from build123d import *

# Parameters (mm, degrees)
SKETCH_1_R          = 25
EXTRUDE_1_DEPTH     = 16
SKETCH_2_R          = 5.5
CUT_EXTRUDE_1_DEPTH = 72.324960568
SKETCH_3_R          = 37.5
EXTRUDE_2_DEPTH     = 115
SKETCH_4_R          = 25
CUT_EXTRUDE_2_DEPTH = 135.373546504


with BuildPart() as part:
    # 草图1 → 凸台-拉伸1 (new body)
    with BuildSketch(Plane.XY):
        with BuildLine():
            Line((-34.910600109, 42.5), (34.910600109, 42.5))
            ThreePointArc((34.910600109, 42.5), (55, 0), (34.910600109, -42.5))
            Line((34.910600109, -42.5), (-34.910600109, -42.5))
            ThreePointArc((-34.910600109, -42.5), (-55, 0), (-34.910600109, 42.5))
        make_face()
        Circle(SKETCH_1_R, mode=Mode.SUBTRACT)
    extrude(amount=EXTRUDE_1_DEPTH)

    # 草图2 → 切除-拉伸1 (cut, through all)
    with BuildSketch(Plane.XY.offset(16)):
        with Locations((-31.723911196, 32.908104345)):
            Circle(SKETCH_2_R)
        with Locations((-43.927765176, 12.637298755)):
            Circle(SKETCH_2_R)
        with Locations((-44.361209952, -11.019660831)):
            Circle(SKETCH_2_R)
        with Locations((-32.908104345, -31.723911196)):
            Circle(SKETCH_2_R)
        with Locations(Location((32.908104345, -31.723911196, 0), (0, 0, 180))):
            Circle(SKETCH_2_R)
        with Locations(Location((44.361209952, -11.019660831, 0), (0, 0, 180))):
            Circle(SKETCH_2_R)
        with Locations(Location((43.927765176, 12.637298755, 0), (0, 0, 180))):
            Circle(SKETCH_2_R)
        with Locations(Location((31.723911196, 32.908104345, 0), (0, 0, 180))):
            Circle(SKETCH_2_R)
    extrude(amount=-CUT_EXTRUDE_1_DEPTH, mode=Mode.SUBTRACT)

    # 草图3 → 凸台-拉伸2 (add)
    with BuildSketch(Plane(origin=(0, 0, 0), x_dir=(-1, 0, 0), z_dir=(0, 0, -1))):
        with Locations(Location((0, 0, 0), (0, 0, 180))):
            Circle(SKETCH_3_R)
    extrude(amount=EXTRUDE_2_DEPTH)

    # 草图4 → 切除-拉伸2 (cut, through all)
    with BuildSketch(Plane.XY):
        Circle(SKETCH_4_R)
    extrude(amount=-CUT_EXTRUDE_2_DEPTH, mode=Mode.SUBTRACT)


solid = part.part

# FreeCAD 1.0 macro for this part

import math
import FreeCAD as App
import Part
import Sketcher

doc = App.newDocument("Part")
body = doc.addObject("PartDesign::Body", "Body")

# Sketch on XY plane
sketch1 = body.newObject("Sketcher::SketchObject", "Sketch")
sketch1.AttachmentSupport = (doc.getObject("XY_Plane"), [""])
sketch1.MapMode = "FlatFace"
sketch1.addGeometry(Part.LineSegment(App.Vector(35, 42, 0), App.Vector(-35, 42, 0)), False)
sketch1.addGeometry(Part.ArcOfCircle(Part.Circle(App.Vector(0, 0, 0), App.Vector(0, 0, 1), 55), math.radians(129), math.radians(231)), False)
sketch1.addGeometry(Part.LineSegment(App.Vector(-35, -42, 0), App.Vector(35, -42, 0)), False)
sketch1.addGeometry(Part.ArcOfCircle(Part.Circle(App.Vector(0, 0, 0), App.Vector(0, 0, 1), 55), math.radians(-51), math.radians(51)), False)
sketch1.addGeometry(Part.Circle(App.Vector(0, 0, 0), App.Vector(0, 0, 1), 25), False)
sketch1.addConstraint(Sketcher.Constraint("Coincident", 0, 2, 1, 1))
sketch1.addConstraint(Sketcher.Constraint("Coincident", 1, 2, 2, 1))
sketch1.addConstraint(Sketcher.Constraint("Coincident", 2, 2, 3, 1))
sketch1.addConstraint(Sketcher.Constraint("Coincident", 3, 2, 0, 1))
sketch1.addConstraint(Sketcher.Constraint("Horizontal", 0))
sketch1.addConstraint(Sketcher.Constraint("Horizontal", 2))
sketch1.addConstraint(Sketcher.Constraint("Coincident", 1, 3, -1, 1))
sketch1.addConstraint(Sketcher.Constraint("Coincident", 3, 3, -1, 1))
sketch1.addConstraint(Sketcher.Constraint("Coincident", 4, 3, -1, 1))
sketch1.addConstraint(Sketcher.Constraint("Equal", 1, 3))
sketch1.addConstraint(Sketcher.Constraint("Vertical", 0, 2, 1, 2))
sketch1.addConstraint(Sketcher.Constraint("Diameter", 4, 50.0))
sketch1.addConstraint(Sketcher.Constraint("Radius", 1, 55.0))
sketch1.addConstraint(Sketcher.Constraint("DistanceY", 1, 2, 0, 2, 85.0))
pad1 = body.newObject("PartDesign::Pad", "Pad")
pad1.Profile = sketch1
pad1.Length = 16

# Sketch on XY plane
sketch2 = body.newObject("Sketcher::SketchObject", "Sketch001")
sketch2.AttachmentSupport = (doc.getObject("XY_Plane"), [""])
sketch2.MapMode = "FlatFace"
sketch2.AttachmentOffset = App.Placement(App.Vector(0, 0, 16), App.Rotation())
sketch2.addGeometry(Part.Circle(App.Vector(-32, 33, 0), App.Vector(0, 0, 1), 6), False)
sketch2.addGeometry(Part.Circle(App.Vector(-44, 13, 0), App.Vector(0, 0, 1), 6), False)
sketch2.addGeometry(Part.Circle(App.Vector(-44, -11, 0), App.Vector(0, 0, 1), 6), False)
sketch2.addGeometry(Part.Circle(App.Vector(-33, -32, 0), App.Vector(0, 0, 1), 6), False)
sketch2.addGeometry(Part.Circle(App.Vector(33, -32, 0), App.Vector(0, 0, 1), 6), False)
sketch2.addGeometry(Part.Circle(App.Vector(44, -11, 0), App.Vector(0, 0, 1), 6), False)
sketch2.addGeometry(Part.Circle(App.Vector(44, 13, 0), App.Vector(0, 0, 1), 6), False)
sketch2.addGeometry(Part.Circle(App.Vector(32, 33, 0), App.Vector(0, 0, 1), 6), False)
sketch2.addConstraint(Sketcher.Constraint("Equal", 0, 1))
sketch2.addConstraint(Sketcher.Constraint("Equal", 1, 2))
sketch2.addConstraint(Sketcher.Constraint("Equal", 2, 3))
sketch2.addConstraint(Sketcher.Constraint("Equal", 3, 4))
sketch2.addConstraint(Sketcher.Constraint("Equal", 4, 5))
sketch2.addConstraint(Sketcher.Constraint("Equal", 5, 6))
sketch2.addConstraint(Sketcher.Constraint("Equal", 6, 7))
sketch2.addConstraint(Sketcher.Constraint("Symmetric", 3, 3, 4, 3, -2))
sketch2.addConstraint(Sketcher.Constraint("Symmetric", 2, 3, 5, 3, -2))
sketch2.addConstraint(Sketcher.Constraint("Symmetric", 1, 3, 6, 3, -2))
sketch2.addConstraint(Sketcher.Constraint("Symmetric", 0, 3, 7, 3, -2))
sketch2.addConstraint(Sketcher.Constraint("Diameter", 0, 11.0))
sketch2.addConstraint(Sketcher.Constraint("DistanceY", -1, 1, 1, 3, 12.637299))
sketch2.addConstraint(Sketcher.Constraint("DistanceX", 2, 3, 0, 3, 12.637299))
sketch2.addConstraint(Sketcher.Constraint("DistanceX", 0, 3, -1, 1, 31.723911))
sketch2.addConstraint(Sketcher.Constraint("DistanceY", 2, 3, -1, 1, 11.019661))
sketch2.addConstraint(Sketcher.Constraint("DistanceY", 3, 3, -1, 1, 31.723911))
sketch2.addConstraint(Sketcher.Constraint("DistanceX", 1, 3, 3, 3, 11.019661))
sketch2.addConstraint(Sketcher.Constraint("DistanceX", 3, 3, 4, 3, 65.816209))
sketch2.addConstraint(Sketcher.Constraint("DistanceY", -1, 1, 0, 3, 32.908104))
pocket1 = body.newObject("PartDesign::Pocket", "Pocket")
pocket1.Profile = sketch2
pocket1.Type = "ThroughAll"

# Sketch on XY plane
sketch3 = body.newObject("Sketcher::SketchObject", "Sketch002")
sketch3.AttachmentSupport = (doc.getObject("XY_Plane"), [""])
sketch3.MapMode = "FlatFace"
sketch3.addGeometry(Part.Circle(App.Vector(0, 0, 0), App.Vector(0, 0, 1), 38), False)
sketch3.addConstraint(Sketcher.Constraint("Coincident", 0, 3, -1, 1))
sketch3.addConstraint(Sketcher.Constraint("Diameter", 0, 75.0))
pad2 = body.newObject("PartDesign::Pad", "Pad001")
pad2.Profile = sketch3
pad2.Length = 115
pad2.Reversed = True

# Sketch on XY plane
sketch4 = body.newObject("Sketcher::SketchObject", "Sketch003")
sketch4.AttachmentSupport = (doc.getObject("XY_Plane"), [""])
sketch4.MapMode = "FlatFace"
sketch4.addGeometry(Part.Circle(App.Vector(0, 0, 0), App.Vector(0, 0, 1), 25), False)
sketch4.addConstraint(Sketcher.Constraint("Coincident", 0, 3, -1, 1))
sketch4.addConstraint(Sketcher.Constraint("Diameter", 0, 50.0))
pocket2 = body.newObject("PartDesign::Pocket", "Pocket001")
pocket2.Profile = sketch4
pocket2.Type = "ThroughAll"

doc.recompute()
